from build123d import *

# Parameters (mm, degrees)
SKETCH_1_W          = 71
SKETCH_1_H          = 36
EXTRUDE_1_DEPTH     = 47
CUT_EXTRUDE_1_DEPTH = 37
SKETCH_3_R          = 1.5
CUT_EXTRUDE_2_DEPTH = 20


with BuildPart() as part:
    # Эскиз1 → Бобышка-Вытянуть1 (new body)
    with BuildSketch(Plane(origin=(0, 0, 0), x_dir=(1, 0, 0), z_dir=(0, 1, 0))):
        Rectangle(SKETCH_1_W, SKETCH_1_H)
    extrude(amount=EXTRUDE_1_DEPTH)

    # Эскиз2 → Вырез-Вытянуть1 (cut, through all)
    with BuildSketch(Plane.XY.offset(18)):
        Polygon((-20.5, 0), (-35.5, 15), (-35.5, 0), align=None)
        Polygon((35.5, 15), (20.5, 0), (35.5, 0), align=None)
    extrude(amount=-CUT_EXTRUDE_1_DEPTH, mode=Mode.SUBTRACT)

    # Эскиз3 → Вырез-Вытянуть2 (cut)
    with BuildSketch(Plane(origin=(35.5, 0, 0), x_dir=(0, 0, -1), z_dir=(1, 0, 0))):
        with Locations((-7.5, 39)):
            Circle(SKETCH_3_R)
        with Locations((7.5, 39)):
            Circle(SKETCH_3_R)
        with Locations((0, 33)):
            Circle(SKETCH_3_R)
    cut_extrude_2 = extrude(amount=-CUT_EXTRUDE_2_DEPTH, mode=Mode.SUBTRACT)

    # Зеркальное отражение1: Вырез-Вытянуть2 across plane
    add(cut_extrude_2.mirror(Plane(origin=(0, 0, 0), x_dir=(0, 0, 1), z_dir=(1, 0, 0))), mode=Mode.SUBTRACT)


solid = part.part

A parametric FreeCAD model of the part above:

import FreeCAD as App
import Part
import Sketcher

V = App.Vector


def add_polygon(sketch, points):
    """Adds a closed chain of lines whose ends are joined by coincident constraints."""
    first, n = sketch.GeometryCount, len(points)
    for a, b in zip(points, points[1:] + points[:1]):
        sketch.addGeometry(Part.LineSegment(App.Vector(*a, 0), App.Vector(*b, 0)), False)
    for i in range(n):
        sketch.addConstraint(Sketcher.Constraint("Coincident", first + i, 2, first + (i + 1) % n, 1))

doc = App.newDocument("Part")
params = doc.addObject("Spreadsheet::Sheet", "Params")
for row, (alias, value) in enumerate([
    ("sketch1_width", "71 mm"),
    ("sketch1_height", "36 mm"),
    ("pad1_length", "47 mm"),
    ("sketch2_width", "15 mm"),
    ("sketch3_diameter", "3 mm"),
    ("pocket2_length", "20 mm"),
], start=1):
    params.set(f"A{row}", alias)
    params.set(f"B{row}", "=" + value)
    params.setAlias(f"B{row}", alias)

body = doc.addObject("PartDesign::Body", "Body")

# Sketch on XZ plane
sketch1 = doc.addObject("Sketcher::SketchObject", "Sketch")
body.addObject(sketch1)
sketch1.AttachmentSupport = (doc.XZ_Plane, [""])
sketch1.MapMode = "FlatFace"
add_polygon(sketch1, [(-36, -18), (-36, 18), (36, 18), (36, -18)])  # lines 0-3
sketch1.addConstraint(Sketcher.Constraint("Vertical", 0))
sketch1.addConstraint(Sketcher.Constraint("Horizontal", 1))
sketch1.addConstraint(Sketcher.Constraint("Vertical", 2))
sketch1.addConstraint(Sketcher.Constraint("Horizontal", 3))
sketch1.addConstraint(Sketcher.Constraint("Symmetric", 0, 2, 2, 2, -1, 1))
sketch1.addConstraint(Sketcher.Constraint("DistanceX", 1, 1, 1, 2, 71.0))
sketch1.addConstraint(Sketcher.Constraint("DistanceY", 0, 1, 0, 2, 36.0))
sketch1.setExpression("Constraints[9]", "Params.sketch1_width")
sketch1.setExpression("Constraints[10]", "Params.sketch1_height")
pad1 = doc.addObject("PartDesign::Pad", "Pad")
body.addObject(pad1)
pad1.Profile = sketch1
pad1.setExpression("Length", "Params.pad1_length")
pad1.Reversed = True

# Sketch on XY plane
sketch2 = doc.addObject("Sketcher::SketchObject", "Sketch001")
body.addObject(sketch2)
sketch2.AttachmentSupport = (doc.XY_Plane, [""])
sketch2.MapMode = "FlatFace"
sketch2.AttachmentOffset = App.Placement(V(0, 0, 18), App.Rotation())
add_polygon(sketch2, [(-20, 0), (-36, 15), (-36, 0)])  # lines 0-2
add_polygon(sketch2, [(36, 15), (20, 0), (36, 0)])  # lines 3-5
sketch2.addConstraint(Sketcher.Constraint("Vertical", 1))
sketch2.addConstraint(Sketcher.Constraint("Horizontal", 2))
sketch2.addConstraint(Sketcher.Constraint("Horizontal", 4))
sketch2.addConstraint(Sketcher.Constraint("Vertical", 5))
sketch2.addConstraint(Sketcher.Constraint("Symmetric", 2, 2, 3, 2, -1, 1))
sketch2.addConstraint(Sketcher.Constraint("Symmetric", 1, 2, 4, 2, -2))
sketch2.addConstraint(Sketcher.Constraint("Perpendicular", 0, 3))
sketch2.addConstraint(Sketcher.Constraint("Horizontal", 0, 2, 5, 2))
sketch2.addConstraint(Sketcher.Constraint("DistanceX", 2, 1, 2, 2, 15.0))
sketch2.addConstraint(Sketcher.Constraint("DistanceX", 2, 2, 3, 2, 41.0))
sketch2.setExpression("Constraints[14]", "Params.sketch2_width")
pocket1 = doc.addObject("PartDesign::Pocket", "Pocket")
body.addObject(pocket1)
pocket1.Profile = sketch2
pocket1.Type = "ThroughAll"

# Sketch on YZ plane
sketch3 = doc.addObject("Sketcher::SketchObject", "Sketch002")
body.addObject(sketch3)
sketch3.AttachmentSupport = (doc.YZ_Plane, [""])
sketch3.MapMode = "FlatFace"
sketch3.AttachmentOffset = App.Placement(V(0, 0, 35.5), App.Rotation())
sketch3.addGeometry(Part.Circle(V(39, 7.5, 0), V(0, 0, 1), 1.5), False)
sketch3.addGeometry(Part.Circle(V(39, -7.5, 0), V(0, 0, 1), 1.5), False)
sketch3.addGeometry(Part.Circle(V(33, 0, 0), V(0, 0, 1), 1.5), False)
sketch3.addConstraint(Sketcher.Constraint("Equal", 0, 1))
sketch3.addConstraint(Sketcher.Constraint("Equal", 1, 2))
sketch3.addConstraint(Sketcher.Constraint("Symmetric", 0, 3, 1, 3, -1))
sketch3.addConstraint(Sketcher.Constraint("PointOnObject", 2, 3, -1))
sketch3.addConstraint(Sketcher.Constraint("Diameter", 0, 3.0))
sketch3.addConstraint(Sketcher.Constraint("DistanceX", -1, 1, 0, 3, 39.0))
sketch3.addConstraint(Sketcher.Constraint("DistanceX", -1, 1, 2, 3, 33.0))
sketch3.addConstraint(Sketcher.Constraint("DistanceY", 1, 3, 0, 3, 15.0))
sketch3.setExpression("Constraints[4]", "Params.sketch3_diameter")
pocket2 = doc.addObject("PartDesign::Pocket", "Pocket001")
body.addObject(pocket2)
pocket2.Profile = sketch3
pocket2.setExpression("Length", "Params.pocket2_length")
doc.recompute()

mirrored = doc.addObject("PartDesign::Mirrored", "Mirrored")
body.addObject(mirrored)
mirrored.Originals = [pocket2]
mirrored.MirrorPlane = (doc.YZ_Plane, [""])
body.Tip = mirrored

doc.recompute()
